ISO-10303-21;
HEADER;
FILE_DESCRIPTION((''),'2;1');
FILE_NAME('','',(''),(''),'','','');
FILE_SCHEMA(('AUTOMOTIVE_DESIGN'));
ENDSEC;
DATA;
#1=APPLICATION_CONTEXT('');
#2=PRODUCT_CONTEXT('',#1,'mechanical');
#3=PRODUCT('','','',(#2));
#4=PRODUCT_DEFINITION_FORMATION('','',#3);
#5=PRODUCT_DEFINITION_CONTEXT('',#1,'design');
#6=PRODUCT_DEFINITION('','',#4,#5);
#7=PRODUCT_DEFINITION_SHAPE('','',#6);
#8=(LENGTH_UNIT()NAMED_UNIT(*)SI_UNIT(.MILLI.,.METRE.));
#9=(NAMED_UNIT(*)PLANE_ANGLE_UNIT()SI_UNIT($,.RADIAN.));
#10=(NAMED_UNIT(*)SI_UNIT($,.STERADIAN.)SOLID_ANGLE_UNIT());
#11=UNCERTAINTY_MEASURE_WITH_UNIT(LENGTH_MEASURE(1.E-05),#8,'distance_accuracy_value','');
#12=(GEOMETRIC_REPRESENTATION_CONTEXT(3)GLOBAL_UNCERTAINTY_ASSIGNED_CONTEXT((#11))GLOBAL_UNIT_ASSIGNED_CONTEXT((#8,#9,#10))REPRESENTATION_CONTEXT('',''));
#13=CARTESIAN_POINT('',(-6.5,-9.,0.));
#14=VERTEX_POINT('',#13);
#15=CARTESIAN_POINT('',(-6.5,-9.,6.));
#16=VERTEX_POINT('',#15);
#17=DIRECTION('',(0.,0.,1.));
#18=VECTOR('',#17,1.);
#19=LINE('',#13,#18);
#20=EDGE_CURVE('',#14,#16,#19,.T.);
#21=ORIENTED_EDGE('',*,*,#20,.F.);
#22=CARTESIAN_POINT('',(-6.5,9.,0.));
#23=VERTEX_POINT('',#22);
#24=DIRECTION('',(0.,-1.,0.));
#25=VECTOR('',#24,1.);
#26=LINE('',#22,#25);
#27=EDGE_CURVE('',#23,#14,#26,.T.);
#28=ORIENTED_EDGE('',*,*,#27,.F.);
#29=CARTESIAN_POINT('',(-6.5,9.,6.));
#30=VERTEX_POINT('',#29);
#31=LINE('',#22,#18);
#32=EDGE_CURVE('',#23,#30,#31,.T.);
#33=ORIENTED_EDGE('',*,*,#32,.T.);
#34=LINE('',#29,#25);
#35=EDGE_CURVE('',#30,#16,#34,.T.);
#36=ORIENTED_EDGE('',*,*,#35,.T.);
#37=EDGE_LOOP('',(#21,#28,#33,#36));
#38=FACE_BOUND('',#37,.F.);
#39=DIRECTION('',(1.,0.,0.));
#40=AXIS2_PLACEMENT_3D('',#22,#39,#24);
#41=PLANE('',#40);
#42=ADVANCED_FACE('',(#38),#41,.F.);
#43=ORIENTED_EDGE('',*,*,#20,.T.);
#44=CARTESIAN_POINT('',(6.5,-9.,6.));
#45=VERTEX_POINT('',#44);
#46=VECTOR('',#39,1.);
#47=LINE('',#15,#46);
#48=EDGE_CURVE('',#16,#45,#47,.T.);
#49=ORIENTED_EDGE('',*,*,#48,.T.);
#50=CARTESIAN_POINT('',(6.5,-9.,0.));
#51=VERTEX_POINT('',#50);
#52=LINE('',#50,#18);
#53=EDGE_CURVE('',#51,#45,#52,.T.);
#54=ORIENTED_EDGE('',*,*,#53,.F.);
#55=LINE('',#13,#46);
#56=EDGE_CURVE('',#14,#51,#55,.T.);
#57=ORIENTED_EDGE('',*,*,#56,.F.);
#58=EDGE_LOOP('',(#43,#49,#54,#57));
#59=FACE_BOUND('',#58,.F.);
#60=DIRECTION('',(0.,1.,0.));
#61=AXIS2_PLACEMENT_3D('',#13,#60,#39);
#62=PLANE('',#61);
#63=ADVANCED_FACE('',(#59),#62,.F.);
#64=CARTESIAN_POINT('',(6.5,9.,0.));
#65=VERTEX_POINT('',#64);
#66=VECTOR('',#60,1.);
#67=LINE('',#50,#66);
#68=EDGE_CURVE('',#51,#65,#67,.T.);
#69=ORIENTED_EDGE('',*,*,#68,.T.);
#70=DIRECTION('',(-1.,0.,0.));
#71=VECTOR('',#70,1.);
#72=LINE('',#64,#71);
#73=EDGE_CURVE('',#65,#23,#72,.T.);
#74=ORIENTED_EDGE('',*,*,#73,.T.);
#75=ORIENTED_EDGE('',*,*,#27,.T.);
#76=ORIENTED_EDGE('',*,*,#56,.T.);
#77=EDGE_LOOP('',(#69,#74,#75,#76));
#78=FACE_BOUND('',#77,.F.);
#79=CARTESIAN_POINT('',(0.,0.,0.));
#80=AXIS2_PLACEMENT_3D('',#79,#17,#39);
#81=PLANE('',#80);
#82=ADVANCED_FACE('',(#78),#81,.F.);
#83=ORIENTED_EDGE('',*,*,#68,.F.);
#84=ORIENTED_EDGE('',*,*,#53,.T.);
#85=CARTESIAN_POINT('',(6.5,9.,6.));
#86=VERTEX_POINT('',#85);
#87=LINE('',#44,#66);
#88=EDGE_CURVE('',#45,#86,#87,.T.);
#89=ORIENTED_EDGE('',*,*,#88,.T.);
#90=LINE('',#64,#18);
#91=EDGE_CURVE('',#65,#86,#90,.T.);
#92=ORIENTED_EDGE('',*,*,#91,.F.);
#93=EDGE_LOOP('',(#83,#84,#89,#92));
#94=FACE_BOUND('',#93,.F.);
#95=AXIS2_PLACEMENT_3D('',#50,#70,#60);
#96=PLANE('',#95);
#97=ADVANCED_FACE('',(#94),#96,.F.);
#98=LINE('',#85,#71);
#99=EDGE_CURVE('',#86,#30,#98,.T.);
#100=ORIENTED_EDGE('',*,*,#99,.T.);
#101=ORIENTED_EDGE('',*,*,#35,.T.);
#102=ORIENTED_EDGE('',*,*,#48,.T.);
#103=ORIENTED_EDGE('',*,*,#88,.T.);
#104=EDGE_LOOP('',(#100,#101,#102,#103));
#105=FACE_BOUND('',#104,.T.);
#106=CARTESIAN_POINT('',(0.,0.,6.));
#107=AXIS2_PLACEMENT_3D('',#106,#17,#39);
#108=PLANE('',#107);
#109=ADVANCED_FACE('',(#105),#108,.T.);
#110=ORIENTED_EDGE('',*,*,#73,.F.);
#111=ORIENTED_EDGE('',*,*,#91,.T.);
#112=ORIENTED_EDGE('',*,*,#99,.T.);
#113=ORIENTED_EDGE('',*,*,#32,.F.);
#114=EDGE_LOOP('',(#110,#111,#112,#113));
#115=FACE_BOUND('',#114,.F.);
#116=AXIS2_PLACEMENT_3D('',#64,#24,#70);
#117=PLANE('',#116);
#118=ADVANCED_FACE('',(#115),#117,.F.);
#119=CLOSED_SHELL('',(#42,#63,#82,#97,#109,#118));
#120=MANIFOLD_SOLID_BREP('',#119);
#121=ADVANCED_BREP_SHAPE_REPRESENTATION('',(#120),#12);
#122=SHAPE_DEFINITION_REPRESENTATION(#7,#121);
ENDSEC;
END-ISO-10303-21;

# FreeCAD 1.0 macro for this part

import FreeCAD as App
import Part
import Sketcher

V = App.Vector
Q = App.Units.Quantity

doc = App.newDocument("Part")
body = doc.addObject("PartDesign::Body", "Body")

# Sketch on XY plane
sketch1 = body.newObject("Sketcher::SketchObject", "Sketch")
sketch1.AttachmentSupport = (doc.getObject("XY_Plane"), [""])
sketch1.MapMode = "FlatFace"
sketch1.addGeometry([
    Part.LineSegment(V(-6.5, 9, 0), V(-6.5, -9, 0)),
    Part.LineSegment(V(-6.5, -9, 0), V(6.5, -9, 0)),
    Part.LineSegment(V(6.5, -9, 0), V(6.5, 9, 0)),
    Part.LineSegment(V(6.5, 9, 0), V(-6.5, 9, 0)),
], False)
sketch1.addConstraint([
    Sketcher.Constraint("Coincident", 0, 2, 1, 1),
    Sketcher.Constraint("Coincident", 1, 2, 2, 1),
    Sketcher.Constraint("Coincident", 2, 2, 3, 1),
    Sketcher.Constraint("Coincident", 3, 2, 0, 1),
    Sketcher.Constraint("Vertical", 0),
    Sketcher.Constraint("Horizontal", 1),
    Sketcher.Constraint("Vertical", 2),
    Sketcher.Constraint("Horizontal", 3),
    Sketcher.Constraint("Symmetric", 0, 2, 2, 2, -1, 1),
    Sketcher.Constraint("DistanceX", 1, 1, 1, 2, Q("13 mm")),
    Sketcher.Constraint("DistanceY", 0, 2, 0, 1, Q("18 mm")),
])
pad1 = body.newObject("PartDesign::Pad", "Pad")
pad1.Profile = sketch1
pad1.Length = 6

doc.recompute()
